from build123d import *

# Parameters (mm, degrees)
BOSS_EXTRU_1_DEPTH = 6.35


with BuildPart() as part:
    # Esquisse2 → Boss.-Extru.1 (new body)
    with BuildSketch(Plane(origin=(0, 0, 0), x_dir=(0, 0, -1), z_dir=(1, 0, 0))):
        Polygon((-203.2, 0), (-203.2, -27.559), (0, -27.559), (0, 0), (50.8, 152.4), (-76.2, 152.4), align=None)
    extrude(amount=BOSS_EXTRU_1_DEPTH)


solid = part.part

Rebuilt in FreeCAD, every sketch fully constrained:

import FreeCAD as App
import Part
import Sketcher
Q = App.Units.Quantity

doc = App.newDocument("Part")
body = doc.addObject("PartDesign::Body", "Body")

# Sketch on YZ plane
sketch1 = body.newObject("Sketcher::SketchObject", "Sketch")
sketch1.AttachmentSupport = (doc.getObject("YZ_Plane"), [""])
sketch1.MapMode = "FlatFace"
sketch1.addGeometry(Part.LineSegment(App.Vector(0, 203, 0), App.Vector(-28, 203, 0)), False)
sketch1.addGeometry(Part.LineSegment(App.Vector(-28, 203, 0), App.Vector(-28, 0, 0)), False)
sketch1.addGeometry(Part.LineSegment(App.Vector(-28, 0, 0), App.Vector(0, 0, 0)), False)
sketch1.addGeometry(Part.LineSegment(App.Vector(0, 0, 0), App.Vector(152, -51, 0)), False)
sketch1.addGeometry(Part.LineSegment(App.Vector(152, -51, 0), App.Vector(152, 76, 0)), False)
sketch1.addGeometry(Part.LineSegment(App.Vector(152, 76, 0), App.Vector(0, 203, 0)), False)
sketch1.addConstraint(Sketcher.Constraint("Coincident", 0, 2, 1, 1))
sketch1.addConstraint(Sketcher.Constraint("Coincident", 1, 2, 2, 1))
sketch1.addConstraint(Sketcher.Constraint("Coincident", 2, 2, 3, 1))
sketch1.addConstraint(Sketcher.Constraint("Coincident", 3, 2, 4, 1))
sketch1.addConstraint(Sketcher.Constraint("Coincident", 4, 2, 5, 1))
sketch1.addConstraint(Sketcher.Constraint("Coincident", 5, 2, 0, 1))
sketch1.addConstraint(Sketcher.Constraint("Horizontal", 0))
sketch1.addConstraint(Sketcher.Constraint("Vertical", 1))
sketch1.addConstraint(Sketcher.Constraint("Horizontal", 2))
sketch1.addConstraint(Sketcher.Constraint("Vertical", 4))
sketch1.addConstraint(Sketcher.Constraint("Coincident", 2, 2, -1, 1))
sketch1.addConstraint(Sketcher.Constraint("PointOnObject", 5, 2, -2))
sketch1.addConstraint(Sketcher.Constraint("DistanceY", 1, 2, 1, 1, Q("8 in")))
sketch1.addConstraint(Sketcher.Constraint("DistanceY", 4, 1, 4, 2, Q("5 in")))
sketch1.addConstraint(Sketcher.Constraint("DistanceX", -1, 1, 3, 2, Q("6 in")))
sketch1.addConstraint(Sketcher.Constraint("DistanceY", 3, 2, -1, 1, Q("2 in")))
sketch1.addConstraint(Sketcher.Constraint("DistanceX", 0, 2, 0, 1, Q("1.085 in")))
pad1 = body.newObject("PartDesign::Pad", "Pad")
pad1.Profile = sketch1
pad1.Length = Q("0.25 in")

doc.recompute()
